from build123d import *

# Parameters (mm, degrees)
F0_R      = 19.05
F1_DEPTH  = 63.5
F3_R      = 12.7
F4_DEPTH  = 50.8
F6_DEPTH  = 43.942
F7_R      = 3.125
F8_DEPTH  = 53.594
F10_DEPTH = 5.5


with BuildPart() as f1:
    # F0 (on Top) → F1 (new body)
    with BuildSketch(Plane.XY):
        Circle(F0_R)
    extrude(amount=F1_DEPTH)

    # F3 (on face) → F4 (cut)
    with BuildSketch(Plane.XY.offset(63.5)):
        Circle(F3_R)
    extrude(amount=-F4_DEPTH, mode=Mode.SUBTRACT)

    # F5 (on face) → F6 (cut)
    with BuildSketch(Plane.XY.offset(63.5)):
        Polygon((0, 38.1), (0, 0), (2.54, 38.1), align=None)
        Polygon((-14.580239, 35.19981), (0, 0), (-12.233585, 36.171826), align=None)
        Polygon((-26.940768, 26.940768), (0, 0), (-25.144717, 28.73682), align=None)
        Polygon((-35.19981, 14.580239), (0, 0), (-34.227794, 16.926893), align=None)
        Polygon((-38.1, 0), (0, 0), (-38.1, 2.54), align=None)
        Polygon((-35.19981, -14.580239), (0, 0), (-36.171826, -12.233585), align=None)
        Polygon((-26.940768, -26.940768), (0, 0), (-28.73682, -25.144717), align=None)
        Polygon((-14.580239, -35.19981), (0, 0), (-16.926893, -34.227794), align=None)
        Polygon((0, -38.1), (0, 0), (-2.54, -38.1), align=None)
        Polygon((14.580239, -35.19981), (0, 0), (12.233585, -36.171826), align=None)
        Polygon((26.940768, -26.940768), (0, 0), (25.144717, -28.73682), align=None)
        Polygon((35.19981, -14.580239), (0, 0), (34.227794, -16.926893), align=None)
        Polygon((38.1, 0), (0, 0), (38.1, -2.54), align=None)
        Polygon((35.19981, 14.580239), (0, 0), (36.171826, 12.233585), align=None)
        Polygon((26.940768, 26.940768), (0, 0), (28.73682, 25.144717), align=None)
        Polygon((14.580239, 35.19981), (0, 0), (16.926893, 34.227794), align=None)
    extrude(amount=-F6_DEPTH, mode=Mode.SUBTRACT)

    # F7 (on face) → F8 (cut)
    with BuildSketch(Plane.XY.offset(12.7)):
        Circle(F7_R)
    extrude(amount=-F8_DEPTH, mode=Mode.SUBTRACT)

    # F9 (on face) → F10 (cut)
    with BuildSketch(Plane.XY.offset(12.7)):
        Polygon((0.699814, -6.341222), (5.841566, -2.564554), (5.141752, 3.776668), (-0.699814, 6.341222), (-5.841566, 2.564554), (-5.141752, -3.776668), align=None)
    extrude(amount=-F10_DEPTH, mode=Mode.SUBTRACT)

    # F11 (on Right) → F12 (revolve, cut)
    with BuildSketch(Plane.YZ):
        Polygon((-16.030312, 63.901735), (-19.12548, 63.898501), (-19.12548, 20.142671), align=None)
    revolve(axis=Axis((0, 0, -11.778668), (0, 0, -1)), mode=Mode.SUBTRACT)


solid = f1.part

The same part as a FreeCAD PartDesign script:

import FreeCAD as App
import Part
import Sketcher

V = App.Vector
Q = App.Units.Quantity

doc = App.newDocument("Part")
body = doc.addObject("PartDesign::Body", "Body")

# Sketch on XY plane
sketch1 = body.newObject("Sketcher::SketchObject", "Sketch")
sketch1.AttachmentSupport = (doc.getObject("XY_Plane"), [""])
sketch1.MapMode = "FlatFace"
sketch1.addGeometry(Part.Circle(V(0, 0, 0), V(0, 0, 1), 19.05), False)
sketch1.addConstraint([
    Sketcher.Constraint("Coincident", 0, 3, -1, 1),
    Sketcher.Constraint("Diameter", 0, Q("1.5 in")),
])
pad1 = body.newObject("PartDesign::Pad", "Pad")
pad1.Profile = sketch1
pad1.Length = Q("2.5 in")

# Sketch on XY plane
sketch2 = body.newObject("Sketcher::SketchObject", "Sketch001")
sketch2.AttachmentSupport = (doc.getObject("XY_Plane"), [""])
sketch2.MapMode = "FlatFace"
sketch2.AttachmentOffset = App.Placement(V(0, 0, 2.5 * 25.4), App.Rotation())
sketch2.addGeometry(Part.Circle(V(0, 0, 0), V(0, 0, 1), 12.7), False)
sketch2.addConstraint([
    Sketcher.Constraint("Coincident", 0, 3, -1, 1),
    Sketcher.Constraint("Diameter", 0, Q("1 in")),
])
pocket1 = body.newObject("PartDesign::Pocket", "Pocket")
pocket1.Profile = sketch2
pocket1.Length = Q("2 in")

# Sketch on XY plane
sketch3 = body.newObject("Sketcher::SketchObject", "Sketch002")
sketch3.AttachmentSupport = (doc.getObject("XY_Plane"), [""])
sketch3.MapMode = "FlatFace"
sketch3.AttachmentOffset = App.Placement(V(0, 0, 2.5 * 25.4), App.Rotation())
sketch3.addGeometry([
    Part.LineSegment(V(0, 38.1, 0), V(0, 0, 0)),  # 0
    Part.LineSegment(V(0, 0, 0), V(2.54, 38.1, 0)),  # 1
    Part.LineSegment(V(2.54, 38.1, 0), V(0, 38.1, 0)),  # 2
    Part.LineSegment(V(-14.580239, 35.19981, 0), V(0, 0, 0)),  # 3
    Part.LineSegment(V(0, 0, 0), V(-12.233585, 36.171826, 0)),  # 4
    Part.LineSegment(V(-12.233585, 36.171826, 0), V(-14.580239, 35.19981, 0)),  # 5
    Part.LineSegment(V(-26.940768, 26.940768, 0), V(0, 0, 0)),  # 6
    Part.LineSegment(V(0, 0, 0), V(-25.144717, 28.73682, 0)),  # 7
    Part.LineSegment(V(-25.144717, 28.73682, 0), V(-26.940768, 26.940768, 0)),  # 8
    Part.LineSegment(V(-35.19981, 14.580239, 0), V(0, 0, 0)),  # 9
    Part.LineSegment(V(0, 0, 0), V(-34.227794, 16.926893, 0)),  # 10
    Part.LineSegment(V(-34.227794, 16.926893, 0), V(-35.19981, 14.580239, 0)),  # 11
    Part.LineSegment(V(-38.1, 0, 0), V(0, 0, 0)),  # 12
    Part.LineSegment(V(0, 0, 0), V(-38.1, 2.54, 0)),  # 13
    Part.LineSegment(V(-38.1, 2.54, 0), V(-38.1, 0, 0)),  # 14
    Part.LineSegment(V(-35.19981, -14.580239, 0), V(0, 0, 0)),  # 15
    Part.LineSegment(V(0, 0, 0), V(-36.171826, -12.233585, 0)),  # 16
    Part.LineSegment(V(-36.171826, -12.233585, 0), V(-35.19981, -14.580239, 0)),  # 17
    Part.LineSegment(V(-26.940768, -26.940768, 0), V(0, 0, 0)),  # 18
    Part.LineSegment(V(0, 0, 0), V(-28.73682, -25.144717, 0)),  # 19
    Part.LineSegment(V(-28.73682, -25.144717, 0), V(-26.940768, -26.940768, 0)),  # 20
    Part.LineSegment(V(-14.580239, -35.19981, 0), V(0, 0, 0)),  # 21
    Part.LineSegment(V(0, 0, 0), V(-16.926893, -34.227794, 0)),  # 22
    Part.LineSegment(V(-16.926893, -34.227794, 0), V(-14.580239, -35.19981, 0)),  # 23
    Part.LineSegment(V(0, -38.1, 0), V(0, 0, 0)),  # 24
    Part.LineSegment(V(0, 0, 0), V(-2.54, -38.1, 0)),  # 25
    Part.LineSegment(V(-2.54, -38.1, 0), V(0, -38.1, 0)),  # 26
    Part.LineSegment(V(14.580239, -35.19981, 0), V(0, 0, 0)),  # 27
    Part.LineSegment(V(0, 0, 0), V(12.233585, -36.171826, 0)),  # 28
    Part.LineSegment(V(12.233585, -36.171826, 0), V(14.580239, -35.19981, 0)),  # 29
    Part.LineSegment(V(26.940768, -26.940768, 0), V(0, 0, 0)),  # 30
    Part.LineSegment(V(0, 0, 0), V(25.144717, -28.73682, 0)),  # 31
    Part.LineSegment(V(25.144717, -28.73682, 0), V(26.940768, -26.940768, 0)),  # 32
    Part.LineSegment(V(35.19981, -14.580239, 0), V(0, 0, 0)),  # 33
    Part.LineSegment(V(0, 0, 0), V(34.227794, -16.926893, 0)),  # 34
    Part.LineSegment(V(34.227794, -16.926893, 0), V(35.19981, -14.580239, 0)),  # 35
    Part.LineSegment(V(38.1, 0, 0), V(0, 0, 0)),  # 36
    Part.LineSegment(V(0, 0, 0), V(38.1, -2.54, 0)),  # 37
    Part.LineSegment(V(38.1, -2.54, 0), V(38.1, 0, 0)),  # 38
    Part.LineSegment(V(35.19981, 14.580239, 0), V(0, 0, 0)),  # 39
    Part.LineSegment(V(0, 0, 0), V(36.171826, 12.233585, 0)),  # 40
    Part.LineSegment(V(36.171826, 12.233585, 0), V(35.19981, 14.580239, 0)),  # 41
    Part.LineSegment(V(26.940768, 26.940768, 0), V(0, 0, 0)),  # 42
    Part.LineSegment(V(0, 0, 0), V(28.73682, 25.144717, 0)),  # 43
    Part.LineSegment(V(28.73682, 25.144717, 0), V(26.940768, 26.940768, 0)),  # 44
    Part.LineSegment(V(14.580239, 35.19981, 0), V(0, 0, 0)),  # 45
    Part.LineSegment(V(0, 0, 0), V(16.926893, 34.227794, 0)),  # 46
    Part.LineSegment(V(16.926893, 34.227794, 0), V(14.580239, 35.19981, 0)),  # 47
], False)
sketch3.addConstraint([
    Sketcher.Constraint("Coincident", 0, 2, 1, 1),
    Sketcher.Constraint("Coincident", 1, 2, 2, 1),
    Sketcher.Constraint("Coincident", 2, 2, 0, 1),
    Sketcher.Constraint("Coincident", 3, 2, 4, 1),
    Sketcher.Constraint("Coincident", 4, 2, 5, 1),
    Sketcher.Constraint("Coincident", 5, 2, 3, 1),
    Sketcher.Constraint("Coincident", 6, 2, 7, 1),
    Sketcher.Constraint("Coincident", 7, 2, 8, 1),
    Sketcher.Constraint("Coincident", 8, 2, 6, 1),
    Sketcher.Constraint("Coincident", 9, 2, 10, 1),
    Sketcher.Constraint("Coincident", 10, 2, 11, 1),
    Sketcher.Constraint("Coincident", 11, 2, 9, 1),
    Sketcher.Constraint("Coincident", 12, 2, 13, 1),
    Sketcher.Constraint("Coincident", 13, 2, 14, 1),
    Sketcher.Constraint("Coincident", 14, 2, 12, 1),
    Sketcher.Constraint("Coincident", 15, 2, 16, 1),
    Sketcher.Constraint("Coincident", 16, 2, 17, 1),
    Sketcher.Constraint("Coincident", 17, 2, 15, 1),
    Sketcher.Constraint("Coincident", 18, 2, 19, 1),
    Sketcher.Constraint("Coincident", 19, 2, 20, 1),
    Sketcher.Constraint("Coincident", 20, 2, 18, 1),
    Sketcher.Constraint("Coincident", 21, 2, 22, 1),
    Sketcher.Constraint("Coincident", 22, 2, 23, 1),
    Sketcher.Constraint("Coincident", 23, 2, 21, 1),
    Sketcher.Constraint("Coincident", 24, 2, 25, 1),
    Sketcher.Constraint("Coincident", 25, 2, 26, 1),
    Sketcher.Constraint("Coincident", 26, 2, 24, 1),
    Sketcher.Constraint("Coincident", 27, 2, 28, 1),
    Sketcher.Constraint("Coincident", 28, 2, 29, 1),
    Sketcher.Constraint("Coincident", 29, 2, 27, 1),
    Sketcher.Constraint("Coincident", 30, 2, 31, 1),
    Sketcher.Constraint("Coincident", 31, 2, 32, 1),
    Sketcher.Constraint("Coincident", 32, 2, 30, 1),
    Sketcher.Constraint("Coincident", 33, 2, 34, 1),
    Sketcher.Constraint("Coincident", 34, 2, 35, 1),
    Sketcher.Constraint("Coincident", 35, 2, 33, 1),
    Sketcher.Constraint("Coincident", 36, 2, 37, 1),
    Sketcher.Constraint("Coincident", 37, 2, 38, 1),
    Sketcher.Constraint("Coincident", 38, 2, 36, 1),
    Sketcher.Constraint("Coincident", 39, 2, 40, 1),
    Sketcher.Constraint("Coincident", 40, 2, 41, 1),
    Sketcher.Constraint("Coincident", 41, 2, 39, 1),
    Sketcher.Constraint("Coincident", 42, 2, 43, 1),
    Sketcher.Constraint("Coincident", 43, 2, 44, 1),
    Sketcher.Constraint("Coincident", 44, 2, 42, 1),
    Sketcher.Constraint("Coincident", 45, 2, 46, 1),
    Sketcher.Constraint("Coincident", 46, 2, 47, 1),
    Sketcher.Constraint("Coincident", 47, 2, 45, 1),
    Sketcher.Constraint("Vertical", 0),
    Sketcher.Constraint("Horizontal", 2),
    Sketcher.Constraint("Horizontal", 12),
    Sketcher.Constraint("Vertical", 14),
    Sketcher.Constraint("Vertical", 24),
    Sketcher.Constraint("Horizontal", 26),
    Sketcher.Constraint("Horizontal", 36),
    Sketcher.Constraint("Vertical", 38),
    Sketcher.Constraint("Coincident", 0, 2, -1, 1),
    Sketcher.Constraint("Coincident", 3, 2, -1, 1),
    Sketcher.Constraint("Coincident", 6, 2, -1, 1),
    Sketcher.Constraint("Coincident", 9, 2, -1, 1),
    Sketcher.Constraint("Coincident", 12, 2, -1, 1),
    Sketcher.Constraint("Coincident", 15, 2, -1, 1),
    Sketcher.Constraint("Coincident", 18, 2, -1, 1),
    Sketcher.Constraint("Coincident", 21, 2, -1, 1),
    Sketcher.Constraint("Coincident", 24, 2, -1, 1),
    Sketcher.Constraint("Coincident", 27, 2, -1, 1),
    Sketcher.Constraint("Coincident", 30, 2, -1, 1),
    Sketcher.Constraint("Coincident", 33, 2, -1, 1),
    Sketcher.Constraint("Coincident", 36, 2, -1, 1),
    Sketcher.Constraint("Coincident", 39, 2, -1, 1),
    Sketcher.Constraint("Coincident", 42, 2, -1, 1),
    Sketcher.Constraint("Coincident", 45, 2, -1, 1),
    Sketcher.Constraint("Symmetric", 1, 2, 25, 2, -1, 1),
    Sketcher.Constraint("Symmetric", 4, 2, 28, 2, -1, 1),
    Sketcher.Constraint("Symmetric", 5, 2, 29, 2, -1, 1),
    Sketcher.Constraint("Symmetric", 7, 2, 31, 2, -1, 1),
    Sketcher.Constraint("Symmetric", 8, 2, 32, 2, -1, 1),
    Sketcher.Constraint("Symmetric", 10, 2, 34, 2, -1, 1),
    Sketcher.Constraint("Symmetric", 11, 2, 35, 2, -1, 1),
    Sketcher.Constraint("Symmetric", 13, 2, 37, 2, -1, 1),
    Sketcher.Constraint("Symmetric", 16, 2, 40, 2, -1, 1),
    Sketcher.Constraint("Symmetric", 17, 2, 41, 2, -1, 1),
    Sketcher.Constraint("Symmetric", 19, 2, 43, 2, -1, 1),
    Sketcher.Constraint("Symmetric", 20, 2, 44, 2, -1, 1),
    Sketcher.Constraint("Symmetric", 22, 2, 46, 2, -1, 1),
    Sketcher.Constraint("Symmetric", 23, 2, 47, 2, -1, 1),
    Sketcher.Constraint("Symmetric", 23, 2, 29, 2, -2),
    Sketcher.Constraint("Symmetric", 20, 2, 32, 2, -2),
    Sketcher.Constraint("Symmetric", 17, 2, 35, 2, -2),
    Sketcher.Constraint("Perpendicular", 3, 5),
    Sketcher.Constraint("Perpendicular", 6, 8),
    Sketcher.Constraint("Perpendicular", 9, 11),
    Sketcher.Constraint("Perpendicular", 1, 13),
    Sketcher.Constraint("Parallel", 5, 15),
    Sketcher.Constraint("Perpendicular", 4, 16),
    Sketcher.Constraint("Perpendicular", 15, 17),
    Sketcher.Constraint("Parallel", 8, 18),
    Sketcher.Constraint("Perpendicular", 7, 19),
    Sketcher.Constraint("Perpendicular", 18, 20),
    Sketcher.Constraint("Perpendicular", 10, 22),
    Sketcher.Constraint("Perpendicular", 21, 23),
    Sketcher.Constraint("Equal", 36, 0),
    Sketcher.Constraint("Equal", 1, 4),
    Sketcher.Constraint("Equal", 3, 6),
    Sketcher.Constraint("Equal", 4, 7),
    Sketcher.Constraint("Equal", 6, 9),
    Sketcher.Constraint("Equal", 7, 10),
    Sketcher.Constraint("DistanceX", 2, 2, 2, 1, Q("0.1 in")),
    Sketcher.Constraint("DistanceX", 12, 1, 12, 2, Q("1.5 in")),
    Sketcher.Constraint("Distance", 3, Q("1.5 in")),
    Sketcher.Constraint("Angle", 3, Q("-67.5 deg")),
])
pocket2 = body.newObject("PartDesign::Pocket", "Pocket001")
pocket2.Profile = sketch3
pocket2.Length = Q("1.73 in")

# Sketch on XY plane
sketch4 = body.newObject("Sketcher::SketchObject", "Sketch003")
sketch4.AttachmentSupport = (doc.getObject("XY_Plane"), [""])
sketch4.MapMode = "FlatFace"
sketch4.AttachmentOffset = App.Placement(V(0, 0, 0.5 * 25.4), App.Rotation())
sketch4.addGeometry(Part.Circle(V(0, 0, 0), V(0, 0, 1), 3.125), False)
sketch4.addConstraint([
    Sketcher.Constraint("Coincident", 0, 3, -1, 1),
    Sketcher.Constraint("Diameter", 0, Q("6.25 mm")),
])
pocket3 = body.newObject("PartDesign::Pocket", "Pocket002")
pocket3.Profile = sketch4
pocket3.Length = Q("2.11 in")

# Sketch on XY plane
sketch5 = body.newObject("Sketcher::SketchObject", "Sketch004")
sketch5.AttachmentSupport = (doc.getObject("XY_Plane"), [""])
sketch5.MapMode = "FlatFace"
sketch5.AttachmentOffset = App.Placement(V(0, 0, 0.5 * 25.4), App.Rotation())
sketch5.addGeometry([
    Part.LineSegment(V(0.699814, -6.341222, 0), V(5.841566, -2.564554, 0)),  # 0
    Part.LineSegment(V(5.841566, -2.564554, 0), V(5.141752, 3.776668, 0)),  # 1
    Part.LineSegment(V(5.141752, 3.776668, 0), V(-0.699814, 6.341222, 0)),  # 2
    Part.LineSegment(V(-0.699814, 6.341222, 0), V(-5.841566, 2.564554, 0)),  # 3
    Part.LineSegment(V(-5.841566, 2.564554, 0), V(-5.141752, -3.776668, 0)),  # 4
    Part.LineSegment(V(-5.141752, -3.776668, 0), V(0.699814, -6.341222, 0)),  # 5
], False)
sketch5.addConstraint([
    Sketcher.Constraint("Coincident", 0, 2, 1, 1),
    Sketcher.Constraint("Coincident", 1, 2, 2, 1),
    Sketcher.Constraint("Coincident", 2, 2, 3, 1),
    Sketcher.Constraint("Coincident", 3, 2, 4, 1),
    Sketcher.Constraint("Coincident", 4, 2, 5, 1),
    Sketcher.Constraint("Coincident", 5, 2, 0, 1),
    Sketcher.Constraint("Symmetric", 0, 2, 3, 2, -1, 1),
    Sketcher.Constraint("Symmetric", 1, 2, 4, 2, -1, 1),
    Sketcher.Constraint("Symmetric", 2, 2, 5, 2, -1, 1),
    Sketcher.Constraint("Equal", 0, 1),
    Sketcher.Constraint("Equal", 1, 2),
    Sketcher.Constraint("Distance", 0, Q("6.379721 mm")),
    Sketcher.Constraint("DistanceX", 2, 2, 0, 2, Q("6.54138 mm")),
    Sketcher.Constraint("DistanceY", 3, 2, 2, 2, Q("3.776668 mm")),
    Sketcher.Constraint("DistanceX", 4, 2, 2, 2, Q("4.441938 mm")),
])
pocket4 = body.newObject("PartDesign::Pocket", "Pocket003")
pocket4.Profile = sketch5
pocket4.Length = 5.5

# Sketch on YZ plane
sketch6 = body.newObject("Sketcher::SketchObject", "Sketch005")
sketch6.AttachmentSupport = (doc.getObject("YZ_Plane"), [""])
sketch6.MapMode = "FlatFace"
sketch6.addGeometry([
    Part.LineSegment(V(-16.030312, 63.901735, 0), V(-19.12548, 63.898501, 0)),
    Part.LineSegment(V(-19.12548, 63.898501, 0), V(-19.12548, 20.142671, 0)),
    Part.LineSegment(V(-19.12548, 20.142671, 0), V(-16.030312, 63.901735, 0)),
], False)
sketch6.addConstraint([
    Sketcher.Constraint("Coincident", 0, 2, 1, 1),
    Sketcher.Constraint("Coincident", 1, 2, 2, 1),
    Sketcher.Constraint("Coincident", 2, 2, 0, 1),
    Sketcher.Constraint("Vertical", 1),
    Sketcher.Constraint("DistanceY", 1, 2, 1, 1, Q("43.75583 mm")),
    Sketcher.Constraint("DistanceY", -1, 1, 0, 2, Q("63.898501 mm")),
    Sketcher.Constraint("Distance", 0, Q("3.09517 mm")),
    Sketcher.Constraint("Distance", 2, Q("43.868391 mm")),
    Sketcher.Constraint("DistanceX", 0, 2, -1, 1, Q("19.12548 mm")),
])
groove = body.newObject("PartDesign::Groove", "Groove")
groove.Profile = sketch6
groove.ReferenceAxis = (sketch6, ["V_Axis"])
groove.Angle = 360

doc.recompute()
